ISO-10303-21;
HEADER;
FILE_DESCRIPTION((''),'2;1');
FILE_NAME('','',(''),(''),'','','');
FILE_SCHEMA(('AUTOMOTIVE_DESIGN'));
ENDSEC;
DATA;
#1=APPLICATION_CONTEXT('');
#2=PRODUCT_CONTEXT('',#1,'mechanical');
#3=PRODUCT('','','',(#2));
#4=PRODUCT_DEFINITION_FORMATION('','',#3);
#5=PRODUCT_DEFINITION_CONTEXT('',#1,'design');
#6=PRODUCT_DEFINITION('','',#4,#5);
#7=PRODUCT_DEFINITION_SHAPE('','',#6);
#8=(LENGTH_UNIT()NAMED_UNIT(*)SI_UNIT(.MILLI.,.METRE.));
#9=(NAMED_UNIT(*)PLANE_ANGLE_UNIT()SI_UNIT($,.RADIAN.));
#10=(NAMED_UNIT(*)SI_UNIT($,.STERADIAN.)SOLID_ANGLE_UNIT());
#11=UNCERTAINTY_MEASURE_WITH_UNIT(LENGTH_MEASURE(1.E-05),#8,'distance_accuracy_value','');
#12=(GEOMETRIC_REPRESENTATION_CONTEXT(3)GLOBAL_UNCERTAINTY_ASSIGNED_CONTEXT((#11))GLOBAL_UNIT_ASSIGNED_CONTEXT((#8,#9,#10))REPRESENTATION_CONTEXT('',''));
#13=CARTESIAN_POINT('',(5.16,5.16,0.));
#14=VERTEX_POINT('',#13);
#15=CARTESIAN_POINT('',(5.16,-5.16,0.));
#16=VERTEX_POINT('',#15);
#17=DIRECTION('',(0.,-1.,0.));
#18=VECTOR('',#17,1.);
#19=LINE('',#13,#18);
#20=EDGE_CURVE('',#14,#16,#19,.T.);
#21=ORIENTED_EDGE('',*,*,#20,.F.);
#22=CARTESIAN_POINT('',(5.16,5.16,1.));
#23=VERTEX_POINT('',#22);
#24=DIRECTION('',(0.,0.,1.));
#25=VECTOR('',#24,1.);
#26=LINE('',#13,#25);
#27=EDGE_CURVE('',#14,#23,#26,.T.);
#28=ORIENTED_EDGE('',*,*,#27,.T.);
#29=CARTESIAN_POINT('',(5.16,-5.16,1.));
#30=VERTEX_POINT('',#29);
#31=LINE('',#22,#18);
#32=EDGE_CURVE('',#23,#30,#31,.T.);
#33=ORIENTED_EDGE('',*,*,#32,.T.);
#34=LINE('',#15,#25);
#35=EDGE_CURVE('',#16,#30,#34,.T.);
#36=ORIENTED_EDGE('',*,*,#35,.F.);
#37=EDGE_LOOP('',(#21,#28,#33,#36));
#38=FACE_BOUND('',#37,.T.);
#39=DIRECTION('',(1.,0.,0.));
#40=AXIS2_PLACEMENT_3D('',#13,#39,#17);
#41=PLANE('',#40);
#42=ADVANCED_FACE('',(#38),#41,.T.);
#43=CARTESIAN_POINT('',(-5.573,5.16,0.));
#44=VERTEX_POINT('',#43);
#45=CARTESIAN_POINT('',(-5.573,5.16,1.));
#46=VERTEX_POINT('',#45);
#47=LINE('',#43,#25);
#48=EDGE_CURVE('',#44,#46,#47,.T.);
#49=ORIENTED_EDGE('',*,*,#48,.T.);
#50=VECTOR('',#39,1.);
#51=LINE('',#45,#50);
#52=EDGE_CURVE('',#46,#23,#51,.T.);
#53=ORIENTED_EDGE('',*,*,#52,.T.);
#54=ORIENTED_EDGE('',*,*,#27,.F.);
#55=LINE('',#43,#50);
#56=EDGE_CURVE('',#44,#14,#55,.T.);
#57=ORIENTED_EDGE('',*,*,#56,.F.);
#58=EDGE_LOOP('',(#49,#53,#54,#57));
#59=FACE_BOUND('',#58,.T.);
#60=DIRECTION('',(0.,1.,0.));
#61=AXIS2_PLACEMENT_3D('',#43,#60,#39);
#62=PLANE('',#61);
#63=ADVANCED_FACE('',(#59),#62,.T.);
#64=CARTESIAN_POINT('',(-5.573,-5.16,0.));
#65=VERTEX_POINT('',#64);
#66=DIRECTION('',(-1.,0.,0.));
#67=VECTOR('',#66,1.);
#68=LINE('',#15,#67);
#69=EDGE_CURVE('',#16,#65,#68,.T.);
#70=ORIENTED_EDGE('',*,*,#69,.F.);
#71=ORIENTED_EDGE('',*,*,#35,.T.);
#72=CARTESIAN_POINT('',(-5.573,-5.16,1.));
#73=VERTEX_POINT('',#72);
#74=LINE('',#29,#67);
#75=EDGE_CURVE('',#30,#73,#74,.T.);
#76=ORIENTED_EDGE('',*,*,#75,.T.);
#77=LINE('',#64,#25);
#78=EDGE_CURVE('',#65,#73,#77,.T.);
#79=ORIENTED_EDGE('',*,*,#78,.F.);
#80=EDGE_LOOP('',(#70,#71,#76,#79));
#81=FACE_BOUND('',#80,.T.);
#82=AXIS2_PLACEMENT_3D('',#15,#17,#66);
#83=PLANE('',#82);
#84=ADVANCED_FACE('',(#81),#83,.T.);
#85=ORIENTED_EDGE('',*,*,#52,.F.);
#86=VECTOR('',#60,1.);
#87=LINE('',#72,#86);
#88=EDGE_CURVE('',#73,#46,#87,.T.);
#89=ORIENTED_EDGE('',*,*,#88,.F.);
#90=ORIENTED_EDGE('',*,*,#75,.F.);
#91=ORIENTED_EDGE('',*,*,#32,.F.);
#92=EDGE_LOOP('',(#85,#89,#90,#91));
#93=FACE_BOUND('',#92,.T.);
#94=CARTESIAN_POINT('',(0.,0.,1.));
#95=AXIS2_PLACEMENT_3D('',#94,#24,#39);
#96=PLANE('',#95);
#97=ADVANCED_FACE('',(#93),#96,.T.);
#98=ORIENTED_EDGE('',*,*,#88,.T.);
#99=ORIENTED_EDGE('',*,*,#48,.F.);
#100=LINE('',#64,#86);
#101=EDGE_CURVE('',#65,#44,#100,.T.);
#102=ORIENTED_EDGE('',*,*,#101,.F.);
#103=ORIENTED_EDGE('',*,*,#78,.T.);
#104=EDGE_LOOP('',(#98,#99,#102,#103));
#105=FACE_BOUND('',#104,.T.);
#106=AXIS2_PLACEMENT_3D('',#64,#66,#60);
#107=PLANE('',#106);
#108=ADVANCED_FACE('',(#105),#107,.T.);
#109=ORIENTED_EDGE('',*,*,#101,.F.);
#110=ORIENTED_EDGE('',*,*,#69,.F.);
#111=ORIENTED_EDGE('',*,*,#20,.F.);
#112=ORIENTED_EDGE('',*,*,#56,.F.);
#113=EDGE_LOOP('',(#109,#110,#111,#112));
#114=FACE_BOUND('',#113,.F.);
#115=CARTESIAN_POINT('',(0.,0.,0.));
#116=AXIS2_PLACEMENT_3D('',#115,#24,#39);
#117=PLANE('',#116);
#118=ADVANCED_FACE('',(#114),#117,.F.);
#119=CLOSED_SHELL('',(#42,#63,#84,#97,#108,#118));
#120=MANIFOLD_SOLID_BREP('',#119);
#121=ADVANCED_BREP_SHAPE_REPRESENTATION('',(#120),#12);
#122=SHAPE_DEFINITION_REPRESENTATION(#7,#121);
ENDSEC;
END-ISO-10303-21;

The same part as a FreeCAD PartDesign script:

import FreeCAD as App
import Part
import Sketcher
Q = App.Units.Quantity

doc = App.newDocument("Part")
params = doc.addObject("Spreadsheet::Sheet", "Params")
for row, (alias, value) in enumerate([
    ("sketch1_height", "10.32 mm"),
    ("pad1_length", "1 mm"),
], start=1):
    params.set(f"A{row}", alias)
    params.set(f"B{row}", "=" + value)
    params.setAlias(f"B{row}", alias)

body = doc.addObject("PartDesign::Body", "Body")

# Sketch on XY plane
sketch1 = body.newObject("Sketcher::SketchObject", "Sketch")
sketch1.AttachmentSupport = (doc.getObject("XY_Plane"), [""])
sketch1.MapMode = "FlatFace"
sketch1.addGeometry(Part.LineSegment(App.Vector(5, 5, 0), App.Vector(-6, 5, 0)), False)
sketch1.addGeometry(Part.LineSegment(App.Vector(-6, 5, 0), App.Vector(-6, -5, 0)), False)
sketch1.addGeometry(Part.LineSegment(App.Vector(-6, -5, 0), App.Vector(5, -5, 0)), False)
sketch1.addGeometry(Part.LineSegment(App.Vector(5, -5, 0), App.Vector(5, 5, 0)), False)
sketch1.addConstraint(Sketcher.Constraint("Coincident", 0, 2, 1, 1))
sketch1.addConstraint(Sketcher.Constraint("Coincident", 1, 2, 2, 1))
sketch1.addConstraint(Sketcher.Constraint("Coincident", 2, 2, 3, 1))
sketch1.addConstraint(Sketcher.Constraint("Coincident", 3, 2, 0, 1))
sketch1.addConstraint(Sketcher.Constraint("Horizontal", 0))
sketch1.addConstraint(Sketcher.Constraint("Vertical", 1))
sketch1.addConstraint(Sketcher.Constraint("Horizontal", 2))
sketch1.addConstraint(Sketcher.Constraint("Vertical", 3))
sketch1.addConstraint(Sketcher.Constraint("DistanceY", 1, 2, 1, 1, Q("10.32 mm")))
sketch1.addConstraint(Sketcher.Constraint("DistanceX", 0, 2, 0, 1, Q("10.733 mm")))
sketch1.addConstraint(Sketcher.Constraint("DistanceY", -1, 1, 0, 2, Q("5.16 mm")))
sketch1.addConstraint(Sketcher.Constraint("DistanceX", -1, 1, 2, 2, Q("5.16 mm")))
sketch1.setExpression("Constraints[8]", "Params.sketch1_height")
pad1 = body.newObject("PartDesign::Pad", "Pad")
pad1.Profile = sketch1
pad1.setExpression("Length", "Params.pad1_length")

doc.recompute()
